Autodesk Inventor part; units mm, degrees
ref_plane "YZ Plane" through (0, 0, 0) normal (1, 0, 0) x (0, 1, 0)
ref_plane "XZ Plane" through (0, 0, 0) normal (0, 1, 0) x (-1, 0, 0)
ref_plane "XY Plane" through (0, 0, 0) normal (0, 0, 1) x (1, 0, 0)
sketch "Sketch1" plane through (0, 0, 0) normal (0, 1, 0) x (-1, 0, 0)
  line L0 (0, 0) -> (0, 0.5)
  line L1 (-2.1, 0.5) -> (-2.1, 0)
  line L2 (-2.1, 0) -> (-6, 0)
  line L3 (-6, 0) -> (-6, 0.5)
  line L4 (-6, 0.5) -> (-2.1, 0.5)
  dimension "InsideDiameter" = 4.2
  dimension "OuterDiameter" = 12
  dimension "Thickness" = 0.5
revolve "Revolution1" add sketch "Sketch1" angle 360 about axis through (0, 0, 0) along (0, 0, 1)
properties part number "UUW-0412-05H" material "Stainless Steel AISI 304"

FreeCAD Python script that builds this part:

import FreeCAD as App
import Part
import Sketcher


def add_polygon(sketch, points):
    """Adds a closed chain of lines whose ends are joined by coincident constraints."""
    first, n = sketch.GeometryCount, len(points)
    for a, b in zip(points, points[1:] + points[:1]):
        sketch.addGeometry(Part.LineSegment(App.Vector(*a, 0), App.Vector(*b, 0)), False)
    for i in range(n):
        sketch.addConstraint(Sketcher.Constraint("Coincident", first + i, 2, first + (i + 1) % n, 1))

doc = App.newDocument("Part")
params = doc.addObject("Spreadsheet::Sheet", "Params")
for row, (alias, value) in enumerate([
    ("sketch1_height", "0.5 mm"),
    ("sketch1_width", "3.9 mm"),
    ("revolution_angle", "360 deg"),
], start=1):
    params.set(f"A{row}", alias)
    params.set(f"B{row}", "=" + value)
    params.setAlias(f"B{row}", alias)

body = doc.addObject("PartDesign::Body", "Body")

# Sketch on XZ plane
sketch1 = doc.addObject("Sketcher::SketchObject", "Sketch")
body.addObject(sketch1)
sketch1.AttachmentSupport = (doc.XZ_Plane, [""])
sketch1.MapMode = "FlatFace"
add_polygon(sketch1, [(2.1, 0), (2.1, 0.5), (6, 0.5), (6, 0)])  # lines 0-3
sketch1.addConstraint(Sketcher.Constraint("Vertical", 0))
sketch1.addConstraint(Sketcher.Constraint("Horizontal", 1))
sketch1.addConstraint(Sketcher.Constraint("Vertical", 2))
sketch1.addConstraint(Sketcher.Constraint("Horizontal", 3))
sketch1.addConstraint(Sketcher.Constraint("PointOnObject", 2, 2, -1))
sketch1.addConstraint(Sketcher.Constraint("DistanceY", 0, 1, 0, 2, 0.5))
sketch1.addConstraint(Sketcher.Constraint("DistanceX", 1, 1, 1, 2, 3.9))
sketch1.addConstraint(Sketcher.Constraint("DistanceX", -1, 1, 1, 2, 6.0))
sketch1.setExpression("Constraints[9]", "Params.sketch1_height")
sketch1.setExpression("Constraints[10]", "Params.sketch1_width")
revolution = doc.addObject("PartDesign::Revolution", "Revolution")
body.addObject(revolution)
revolution.Profile = sketch1
revolution.ReferenceAxis = (sketch1, ["V_Axis"])
revolution.setExpression("Angle", "Params.revolution_angle")

doc.recompute()
